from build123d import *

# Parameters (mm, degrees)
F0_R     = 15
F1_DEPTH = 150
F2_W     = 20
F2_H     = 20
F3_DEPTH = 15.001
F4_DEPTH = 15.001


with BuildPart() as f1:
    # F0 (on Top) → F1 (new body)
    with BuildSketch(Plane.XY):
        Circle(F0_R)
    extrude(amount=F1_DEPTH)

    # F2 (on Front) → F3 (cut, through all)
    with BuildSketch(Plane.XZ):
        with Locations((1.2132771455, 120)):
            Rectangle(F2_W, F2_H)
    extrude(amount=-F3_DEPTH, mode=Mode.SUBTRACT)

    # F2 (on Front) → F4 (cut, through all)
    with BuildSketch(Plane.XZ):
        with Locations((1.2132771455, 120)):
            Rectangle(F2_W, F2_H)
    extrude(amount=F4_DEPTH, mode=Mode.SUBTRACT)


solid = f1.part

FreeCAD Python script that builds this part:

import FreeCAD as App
import Part
import Sketcher

V = App.Vector


def add_polygon(sketch, points):
    """Adds a closed chain of lines whose ends are joined by coincident constraints."""
    first, n = sketch.GeometryCount, len(points)
    for a, b in zip(points, points[1:] + points[:1]):
        sketch.addGeometry(Part.LineSegment(App.Vector(*a, 0), App.Vector(*b, 0)), False)
    for i in range(n):
        sketch.addConstraint(Sketcher.Constraint("Coincident", first + i, 2, first + (i + 1) % n, 1))

doc = App.newDocument("Part")
body = doc.addObject("PartDesign::Body", "Body")

# Sketch on XY plane
sketch1 = body.newObject("Sketcher::SketchObject", "Sketch")
sketch1.AttachmentSupport = (doc.getObject("XY_Plane"), [""])
sketch1.MapMode = "FlatFace"
sketch1.addGeometry(Part.Circle(V(0, 0, 0), V(0, 0, 1), 15), False)
sketch1.addConstraint([
    Sketcher.Constraint("Coincident", 0, 3, -1, 1),
    Sketcher.Constraint("Diameter", 0, 30.0),
])
pad1 = body.newObject("PartDesign::Pad", "Pad")
pad1.Profile = sketch1
pad1.Length = 150

# Sketch on XZ plane
sketch2 = body.newObject("Sketcher::SketchObject", "Sketch001")
sketch2.AttachmentSupport = (doc.getObject("XZ_Plane"), [""])
sketch2.MapMode = "FlatFace"
add_polygon(sketch2, [(-9, 130), (-9, 110), (11, 110), (11, 130)])  # lines 0-3
sketch2.addConstraint([
    Sketcher.Constraint("Vertical", 0),
    Sketcher.Constraint("Horizontal", 1),
    Sketcher.Constraint("Vertical", 2),
    Sketcher.Constraint("Horizontal", 3),
    Sketcher.Constraint("Equal", 3, 0),
    Sketcher.Constraint("DistanceX", 1, 1, 1, 2, 20.0),
    Sketcher.Constraint("DistanceY", -1, 1, 0, 2, 110.0),
    Sketcher.Constraint("DistanceX", 0, 2, -1, 1, 8.786723),
])
pocket1 = body.newObject("PartDesign::Pocket", "Pocket")
pocket1.Profile = sketch2
pocket1.Type = "ThroughAll"

# Sketch on XZ plane
sketch3 = body.newObject("Sketcher::SketchObject", "Sketch002")
sketch3.AttachmentSupport = (doc.getObject("XZ_Plane"), [""])
sketch3.MapMode = "FlatFace"
add_polygon(sketch3, [(-9, 130), (-9, 110), (11, 110), (11, 130)])  # lines 0-3
sketch3.addConstraint([
    Sketcher.Constraint("Vertical", 0),
    Sketcher.Constraint("Horizontal", 1),
    Sketcher.Constraint("Vertical", 2),
    Sketcher.Constraint("Horizontal", 3),
    Sketcher.Constraint("Equal", 3, 0),
    Sketcher.Constraint("DistanceX", 1, 1, 1, 2, 20.0),
    Sketcher.Constraint("DistanceY", -1, 1, 0, 2, 110.0),
    Sketcher.Constraint("DistanceX", 0, 2, -1, 1, 8.786723),
])
pocket2 = body.newObject("PartDesign::Pocket", "Pocket001")
pocket2.Profile = sketch3
pocket2.Type = "ThroughAll"
pocket2.Reversed = True

doc.recompute()
